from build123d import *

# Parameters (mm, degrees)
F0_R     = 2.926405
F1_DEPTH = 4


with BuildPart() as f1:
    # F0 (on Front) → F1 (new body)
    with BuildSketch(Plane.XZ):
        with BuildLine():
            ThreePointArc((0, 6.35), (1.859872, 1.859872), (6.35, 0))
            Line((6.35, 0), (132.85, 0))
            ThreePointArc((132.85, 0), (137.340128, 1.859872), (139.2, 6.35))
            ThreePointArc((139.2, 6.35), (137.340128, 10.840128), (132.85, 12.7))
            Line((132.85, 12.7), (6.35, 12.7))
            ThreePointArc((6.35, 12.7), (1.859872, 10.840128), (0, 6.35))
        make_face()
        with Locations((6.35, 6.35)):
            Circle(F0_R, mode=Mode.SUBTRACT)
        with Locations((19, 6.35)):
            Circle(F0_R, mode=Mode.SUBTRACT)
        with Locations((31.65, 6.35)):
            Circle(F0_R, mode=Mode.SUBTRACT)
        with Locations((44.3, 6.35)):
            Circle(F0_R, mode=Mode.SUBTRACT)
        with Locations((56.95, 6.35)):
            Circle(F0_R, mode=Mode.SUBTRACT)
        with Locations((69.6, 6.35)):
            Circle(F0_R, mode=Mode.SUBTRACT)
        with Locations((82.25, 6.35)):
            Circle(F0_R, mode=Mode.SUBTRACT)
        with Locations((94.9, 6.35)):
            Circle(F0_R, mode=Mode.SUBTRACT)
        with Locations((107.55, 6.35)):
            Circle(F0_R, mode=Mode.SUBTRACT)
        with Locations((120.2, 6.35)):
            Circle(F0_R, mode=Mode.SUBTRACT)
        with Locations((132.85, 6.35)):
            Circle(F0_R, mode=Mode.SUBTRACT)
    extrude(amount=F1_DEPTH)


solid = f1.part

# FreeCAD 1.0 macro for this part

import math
import FreeCAD as App
import Part
import Sketcher
Q = App.Units.Quantity

doc = App.newDocument("Part")
body = doc.addObject("PartDesign::Body", "Body")

sketch1 = body.newObject("Sketcher::SketchObject", "Sketch")
sketch1.AttachmentSupport = (doc.getObject("XZ_Plane"), [""])
sketch1.MapMode = "FlatFace"
sketch1.addGeometry([
    Part.ArcOfCircle(Part.Circle(App.Vector(6.4, 6.4, 0), App.Vector(0, 0, 1), 6.4), math.radians(-180), math.radians(-90)),
    Part.LineSegment(App.Vector(6.3, 0, 0), App.Vector(132.8, 0, 0)),
    Part.ArcOfCircle(Part.Circle(App.Vector(132.8, 6.4, 0), App.Vector(0, 0, 1), 6.4), math.radians(-90), math.radians(0)),
    Part.ArcOfCircle(Part.Circle(App.Vector(132.8, 6.3, 0), App.Vector(0, 0, 1), 6.4), math.radians(0), math.radians(90)),
    Part.LineSegment(App.Vector(132.8, 12.7, 0), App.Vector(6.3, 12.7, 0)),
    Part.ArcOfCircle(Part.Circle(App.Vector(6.4, 6.3, 0), App.Vector(0, 0, 1), 6.4), math.radians(90), math.radians(180)),
    Part.Circle(App.Vector(6.3, 6.3, 0), App.Vector(0, 0, 1), 2.9),
    Part.Circle(App.Vector(19, 6.3, 0), App.Vector(0, 0, 1), 2.9),
    Part.Circle(App.Vector(31.6, 6.3, 0), App.Vector(0, 0, 1), 2.9),
    Part.Circle(App.Vector(44.3, 6.3, 0), App.Vector(0, 0, 1), 2.9),
    Part.Circle(App.Vector(57, 6.3, 0), App.Vector(0, 0, 1), 2.9),
    Part.Circle(App.Vector(69.6, 6.3, 0), App.Vector(0, 0, 1), 2.9),
    Part.Circle(App.Vector(82.2, 6.3, 0), App.Vector(0, 0, 1), 2.9),
    Part.Circle(App.Vector(94.9, 6.3, 0), App.Vector(0, 0, 1), 2.9),
    Part.Circle(App.Vector(107.5, 6.3, 0), App.Vector(0, 0, 1), 2.9),
    Part.Circle(App.Vector(120.2, 6.3, 0), App.Vector(0, 0, 1), 2.9),
    Part.Circle(App.Vector(132.8, 6.3, 0), App.Vector(0, 0, 1), 2.9),
], False)
sketch1.addConstraint([
    Sketcher.Constraint("Tangent", 0, 2, 1, 1),
    Sketcher.Constraint("Tangent", 1, 2, 2, 1),
    Sketcher.Constraint("Tangent", 2, 2, 3, 1),
    Sketcher.Constraint("Tangent", 3, 2, 4, 1),
    Sketcher.Constraint("Tangent", 4, 2, 5, 1),
    Sketcher.Constraint("Tangent", 5, 2, 0, 1),
    Sketcher.Constraint("Horizontal", 1),
    Sketcher.Constraint("Horizontal", 4),
    Sketcher.Constraint("Coincident", 6, 3, 0, 3),
    Sketcher.Constraint("Coincident", 16, 3, 2, 3),
    Sketcher.Constraint("Equal", 0, 2),
    Sketcher.Constraint("Equal", 2, 3),
    Sketcher.Constraint("Equal", 6, 7),
    Sketcher.Constraint("Equal", 7, 8),
    Sketcher.Constraint("Equal", 8, 9),
    Sketcher.Constraint("Equal", 9, 10),
    Sketcher.Constraint("Equal", 10, 11),
    Sketcher.Constraint("Equal", 11, 12),
    Sketcher.Constraint("Equal", 12, 13),
    Sketcher.Constraint("Equal", 13, 14),
    Sketcher.Constraint("Equal", 14, 15),
    Sketcher.Constraint("Equal", 15, 16),
    Sketcher.Constraint("PointOnObject", 0, 2, -1),
    Sketcher.Constraint("PointOnObject", 5, 2, -2),
    Sketcher.Constraint("Horizontal", 6, 3, 7, 3),
    Sketcher.Constraint("Horizontal", 7, 3, 8, 3),
    Sketcher.Constraint("Horizontal", 8, 3, 9, 3),
    Sketcher.Constraint("Horizontal", 9, 3, 10, 3),
    Sketcher.Constraint("Horizontal", 10, 3, 11, 3),
    Sketcher.Constraint("Horizontal", 11, 3, 12, 3),
    Sketcher.Constraint("Horizontal", 12, 3, 13, 3),
    Sketcher.Constraint("Horizontal", 13, 3, 14, 3),
    Sketcher.Constraint("Horizontal", 14, 3, 15, 3),
    Sketcher.Constraint("Horizontal", 16, 3, 2, 2),
    Sketcher.Constraint("Horizontal", 2, 2, 5, 2),
    Sketcher.Constraint("Radius", 0, Q("6.35 mm")),
    Sketcher.Constraint("DistanceX", 1, 1, 1, 2, Q("126.5 mm")),
    Sketcher.Constraint("DistanceX", -1, 1, 7, 3, Q("19 mm")),
    Sketcher.Constraint("DistanceX", 15, 3, 2, 2, Q("19 mm")),
    Sketcher.Constraint("DistanceX", -1, 1, 9, 3, Q("44.3 mm")),
    Sketcher.Constraint("DistanceX", -1, 1, 11, 3, Q("69.6 mm")),
    Sketcher.Constraint("DistanceX", -1, 1, 13, 3, Q("94.9 mm")),
    Sketcher.Constraint("DistanceX", 0, 3, 8, 3, Q("25.3 mm")),
    Sketcher.Constraint("DistanceX", 8, 3, 10, 3, Q("25.3 mm")),
    Sketcher.Constraint("DistanceX", 10, 3, 12, 3, Q("25.3 mm")),
    Sketcher.Constraint("DistanceX", 14, 3, 2, 3, Q("25.3 mm")),
    Sketcher.Constraint("Diameter", 6, Q("5.85281 mm")),
])
pad1 = body.newObject("PartDesign::Pad", "Pad")
pad1.Profile = sketch1
pad1.Length = 4

doc.recompute()
